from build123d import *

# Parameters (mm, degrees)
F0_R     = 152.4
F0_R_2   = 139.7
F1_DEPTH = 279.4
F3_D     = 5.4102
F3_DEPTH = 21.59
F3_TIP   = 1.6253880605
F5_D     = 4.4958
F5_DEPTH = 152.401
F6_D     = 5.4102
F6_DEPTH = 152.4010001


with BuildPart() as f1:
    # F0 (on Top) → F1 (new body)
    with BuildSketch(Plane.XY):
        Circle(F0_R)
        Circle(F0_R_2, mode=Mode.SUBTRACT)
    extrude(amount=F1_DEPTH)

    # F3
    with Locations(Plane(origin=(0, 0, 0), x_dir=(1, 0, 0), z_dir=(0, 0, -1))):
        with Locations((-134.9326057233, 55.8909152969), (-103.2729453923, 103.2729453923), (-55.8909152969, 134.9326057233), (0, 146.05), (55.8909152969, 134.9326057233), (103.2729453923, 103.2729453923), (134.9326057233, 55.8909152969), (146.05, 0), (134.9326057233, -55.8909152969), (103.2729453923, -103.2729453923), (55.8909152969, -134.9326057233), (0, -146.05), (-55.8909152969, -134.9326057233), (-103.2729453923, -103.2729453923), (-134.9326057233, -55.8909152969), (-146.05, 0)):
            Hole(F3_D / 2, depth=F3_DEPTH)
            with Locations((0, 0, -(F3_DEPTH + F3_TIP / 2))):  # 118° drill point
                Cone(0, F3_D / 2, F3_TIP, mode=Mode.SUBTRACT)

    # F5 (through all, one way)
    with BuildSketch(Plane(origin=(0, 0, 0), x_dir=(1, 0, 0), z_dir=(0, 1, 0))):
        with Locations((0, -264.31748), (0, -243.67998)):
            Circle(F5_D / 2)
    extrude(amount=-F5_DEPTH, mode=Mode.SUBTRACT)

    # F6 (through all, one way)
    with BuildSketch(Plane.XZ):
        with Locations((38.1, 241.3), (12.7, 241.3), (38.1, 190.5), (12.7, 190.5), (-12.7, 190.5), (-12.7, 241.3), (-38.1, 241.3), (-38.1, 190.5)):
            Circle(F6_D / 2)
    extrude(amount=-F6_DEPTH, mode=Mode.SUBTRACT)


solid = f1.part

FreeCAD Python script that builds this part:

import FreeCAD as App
import Part
import Sketcher
Q = App.Units.Quantity

doc = App.newDocument("Part")
body = doc.addObject("PartDesign::Body", "Body")

sketch1 = body.newObject("Sketcher::SketchObject", "Sketch")
sketch1.AttachmentSupport = (doc.getObject("XY_Plane"), [""])
sketch1.MapMode = "FlatFace"
sketch1.addGeometry([
    Part.Circle(App.Vector(0, 0, 0), App.Vector(0, 0, 1), 152),
    Part.Circle(App.Vector(0, 0, 0), App.Vector(0, 0, 1), 140),
], False)
sketch1.addConstraint([
    Sketcher.Constraint("Coincident", 0, 3, -1, 1),
    Sketcher.Constraint("Coincident", 1, 3, -1, 1),
    Sketcher.Constraint("Diameter", 0, Q("12 in")),
    Sketcher.Constraint("Diameter", 1, Q("11 in")),
])
pad1 = body.newObject("PartDesign::Pad", "Pad")
pad1.Profile = sketch1
pad1.Length = Q("11 in")

sketch2 = body.newObject("Sketcher::SketchObject", "Sketch001")
sketch2.AttachmentSupport = (doc.getObject("XY_Plane"), [""])
sketch2.MapMode = "FlatFace"
sketch2.addGeometry([
    Part.Circle(App.Vector(-134.9, -55.9, 0), App.Vector(0, 0, 1), 2.7),
    Part.Circle(App.Vector(-103.3, -103.3, 0), App.Vector(0, 0, 1), 2.7),
    Part.Circle(App.Vector(-55.9, -134.9, 0), App.Vector(0, 0, 1), 2.7),
    Part.Circle(App.Vector(0, -146.1, 0), App.Vector(0, 0, 1), 2.7),
    Part.Circle(App.Vector(55.9, -134.9, 0), App.Vector(0, 0, 1), 2.7),
    Part.Circle(App.Vector(103.3, -103.3, 0), App.Vector(0, 0, 1), 2.7),
    Part.Circle(App.Vector(134.9, -55.9, 0), App.Vector(0, 0, 1), 2.7),
    Part.Circle(App.Vector(146.1, 0, 0), App.Vector(0, 0, 1), 2.7),
    Part.Circle(App.Vector(134.9, 55.9, 0), App.Vector(0, 0, 1), 2.7),
    Part.Circle(App.Vector(103.3, 103.3, 0), App.Vector(0, 0, 1), 2.7),
    Part.Circle(App.Vector(55.9, 134.9, 0), App.Vector(0, 0, 1), 2.7),
    Part.Circle(App.Vector(0, 146.1, 0), App.Vector(0, 0, 1), 2.7),
    Part.Circle(App.Vector(-55.9, 134.9, 0), App.Vector(0, 0, 1), 2.7),
    Part.Circle(App.Vector(-103.3, 103.3, 0), App.Vector(0, 0, 1), 2.7),
    Part.Circle(App.Vector(-134.9, 55.9, 0), App.Vector(0, 0, 1), 2.7),
    Part.Circle(App.Vector(-146.1, 0, 0), App.Vector(0, 0, 1), 2.7),
], False)
sketch2.addConstraint([
    Sketcher.Constraint("Equal", 0, 1),
    Sketcher.Constraint("Equal", 1, 2),
    Sketcher.Constraint("Equal", 2, 3),
    Sketcher.Constraint("Equal", 3, 4),
    Sketcher.Constraint("Equal", 4, 5),
    Sketcher.Constraint("Equal", 5, 6),
    Sketcher.Constraint("Equal", 6, 7),
    Sketcher.Constraint("Equal", 7, 8),
    Sketcher.Constraint("Equal", 8, 9),
    Sketcher.Constraint("Equal", 9, 10),
    Sketcher.Constraint("Equal", 10, 11),
    Sketcher.Constraint("Equal", 11, 12),
    Sketcher.Constraint("Equal", 12, 13),
    Sketcher.Constraint("Equal", 13, 14),
    Sketcher.Constraint("Equal", 14, 15),
    Sketcher.Constraint("Symmetric", 0, 3, 8, 3, -1, 1),
    Sketcher.Constraint("Symmetric", 1, 3, 9, 3, -1, 1),
    Sketcher.Constraint("Symmetric", 2, 3, 10, 3, -1, 1),
    Sketcher.Constraint("Symmetric", 3, 3, 11, 3, -1, 1),
    Sketcher.Constraint("Symmetric", 4, 3, 12, 3, -1, 1),
    Sketcher.Constraint("Symmetric", 5, 3, 13, 3, -1, 1),
    Sketcher.Constraint("Symmetric", 6, 3, 14, 3, -1, 1),
    Sketcher.Constraint("Symmetric", 7, 3, 15, 3, -1, 1),
    Sketcher.Constraint("Symmetric", 2, 3, 4, 3, -2),
    Sketcher.Constraint("Symmetric", 1, 3, 5, 3, -2),
    Sketcher.Constraint("Symmetric", 0, 3, 6, 3, -2),
    Sketcher.Constraint("PointOnObject", 3, 3, -2),
    Sketcher.Constraint("PointOnObject", 7, 3, -1),
    Sketcher.Constraint("Diameter", 0, Q("0.213 in")),
    Sketcher.Constraint("DistanceY", 3, 3, -1, 1, Q("5.75 in")),
    Sketcher.Constraint("DistanceX", -1, 1, 7, 3, Q("5.75 in")),
    Sketcher.Constraint("DistanceX", 0, 3, 1, 3, 31.65966),
    Sketcher.Constraint("DistanceY", 1, 3, 0, 3, 47.38203),
    Sketcher.Constraint("DistanceX", 1, 3, 2, 3, 47.38203),
    Sketcher.Constraint("DistanceY", 2, 3, 1, 3, 31.65966),
    Sketcher.Constraint("DistanceX", 2, 3, 4, 3, 111.781831),
    Sketcher.Constraint("DistanceY", 6, 3, 8, 3, 111.781831),
])
doc.recompute()
hole = body.newObject("PartDesign::Hole", "Hole")
hole.Profile = sketch2
hole.ThreadType = "None"
hole.Diameter = Q("0.213 in")
hole.DepthType = "Dimension"
hole.Depth = Q("0.85 in")
hole.DrillPoint = "Angled"
hole.DrillPointAngle = 118
hole.Reversed = True

sketch3 = body.newObject("Sketcher::SketchObject", "Sketch002")
sketch3.AttachmentSupport = (doc.getObject("XZ_Plane"), [""])
sketch3.MapMode = "FlatFace"
sketch3.addGeometry([
    Part.Circle(App.Vector(0, 243.7, 0), App.Vector(0, 0, 1), 2.2),
    Part.Circle(App.Vector(0, 264.3, 0), App.Vector(0, 0, 1), 2.2),
], False)
sketch3.addConstraint([
    Sketcher.Constraint("Equal", 0, 1),
    Sketcher.Constraint("PointOnObject", 0, 3, -2),
    Sketcher.Constraint("PointOnObject", 1, 3, -2),
    Sketcher.Constraint("Diameter", 0, Q("0.177 in")),
    Sketcher.Constraint("DistanceY", 0, 3, 1, 3, Q("0.8125 in")),
    Sketcher.Constraint("DistanceY", -1, 1, 0, 3, Q("9.5937 in")),
])
pocket1 = body.newObject("PartDesign::Pocket", "Pocket")
pocket1.Profile = sketch3
pocket1.Type = "ThroughAll"
pocket1.Reversed = True

sketch4 = body.newObject("Sketcher::SketchObject", "Sketch003")
sketch4.AttachmentSupport = (doc.getObject("XZ_Plane"), [""])
sketch4.MapMode = "FlatFace"
sketch4.addGeometry([
    Part.Circle(App.Vector(-38.1, 190.5, 0), App.Vector(0, 0, 1), 2.7),
    Part.Circle(App.Vector(38.1, 241.3, 0), App.Vector(0, 0, 1), 2.7),
    Part.Circle(App.Vector(12.7, 241.3, 0), App.Vector(0, 0, 1), 2.7),
    Part.Circle(App.Vector(38.1, 190.5, 0), App.Vector(0, 0, 1), 2.7),
    Part.Circle(App.Vector(12.7, 190.5, 0), App.Vector(0, 0, 1), 2.7),
    Part.Circle(App.Vector(-12.7, 190.5, 0), App.Vector(0, 0, 1), 2.7),
    Part.Circle(App.Vector(-12.7, 241.3, 0), App.Vector(0, 0, 1), 2.7),
    Part.Circle(App.Vector(-38.1, 241.3, 0), App.Vector(0, 0, 1), 2.7),
], False)
sketch4.addConstraint([
    Sketcher.Constraint("Equal", 0, 1),
    Sketcher.Constraint("Equal", 1, 2),
    Sketcher.Constraint("Equal", 2, 3),
    Sketcher.Constraint("Equal", 3, 4),
    Sketcher.Constraint("Equal", 4, 5),
    Sketcher.Constraint("Equal", 5, 6),
    Sketcher.Constraint("Equal", 6, 7),
    Sketcher.Constraint("Symmetric", 0, 3, 3, 3, -2),
    Sketcher.Constraint("Symmetric", 4, 3, 5, 3, -2),
    Sketcher.Constraint("Symmetric", 2, 3, 6, 3, -2),
    Sketcher.Constraint("Symmetric", 1, 3, 7, 3, -2),
    Sketcher.Constraint("Horizontal", 1, 3, 2, 3),
    Sketcher.Constraint("Horizontal", 3, 3, 4, 3),
    Sketcher.Constraint("Vertical", 1, 3, 3, 3),
    Sketcher.Constraint("Vertical", 2, 3, 4, 3),
    Sketcher.Constraint("Diameter", 0, Q("0.213 in")),
    Sketcher.Constraint("DistanceX", 0, 3, 1, 3, Q("3 in")),
    Sketcher.Constraint("DistanceY", 0, 3, 1, 3, Q("2 in")),
    Sketcher.Constraint("DistanceX", 2, 3, 1, 3, Q("1 in")),
    Sketcher.Constraint("DistanceY", -1, 1, 0, 3, Q("7.5 in")),
])
pocket2 = body.newObject("PartDesign::Pocket", "Pocket001")
pocket2.Profile = sketch4
pocket2.Type = "ThroughAll"

doc.recompute()
